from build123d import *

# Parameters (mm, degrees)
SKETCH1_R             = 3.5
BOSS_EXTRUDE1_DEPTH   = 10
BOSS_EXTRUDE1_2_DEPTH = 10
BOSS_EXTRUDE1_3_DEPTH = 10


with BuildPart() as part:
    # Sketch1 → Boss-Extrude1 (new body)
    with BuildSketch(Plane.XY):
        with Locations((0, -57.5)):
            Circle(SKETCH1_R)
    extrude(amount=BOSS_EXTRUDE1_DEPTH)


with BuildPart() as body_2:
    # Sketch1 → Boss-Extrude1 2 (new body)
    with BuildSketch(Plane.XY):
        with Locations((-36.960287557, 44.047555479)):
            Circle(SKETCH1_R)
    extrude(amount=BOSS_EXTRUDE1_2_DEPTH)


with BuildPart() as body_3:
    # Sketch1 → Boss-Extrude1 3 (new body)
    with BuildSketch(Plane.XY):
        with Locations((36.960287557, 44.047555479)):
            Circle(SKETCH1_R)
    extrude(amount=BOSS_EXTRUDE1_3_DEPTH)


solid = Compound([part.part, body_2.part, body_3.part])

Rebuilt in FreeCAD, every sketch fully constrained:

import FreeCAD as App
import Part
import Sketcher
from FreeCAD import Vector

doc = App.newDocument("Part")
params = doc.addObject("Spreadsheet::Sheet", "Params")
for row, (alias, value) in enumerate([
    ("sketch1_diameter", "7 mm"),
    ("pad1_length", "10 mm"),
    ("sketch2_diameter", "7 mm"),
    ("pad2_length", "10 mm"),
    ("sketch3_diameter", "7 mm"),
    ("pad3_length", "10 mm"),
], start=1):
    params.set(f"A{row}", alias)
    params.set(f"B{row}", "=" + value)
    params.setAlias(f"B{row}", alias)

body = doc.addObject("PartDesign::Body", "Body")

sketch1 = body.newObject("Sketcher::SketchObject", "Sketch")
sketch1.AttachmentSupport = (doc.getObject("XY_Plane"), [""])
sketch1.MapMode = "FlatFace"
sketch1.addGeometry(Part.Circle(Vector(0, -57.5, 0), Vector(0, 0, 1), 3.5), False)
sketch1.addConstraint([
    Sketcher.Constraint("PointOnObject", 0, 3, -2),
    Sketcher.Constraint("Diameter", 0, 7.0),
    Sketcher.Constraint("DistanceY", 0, 3, -1, 1, 57.5),
])
sketch1.setExpression("Constraints[1]", "Params.sketch1_diameter")
pad1 = body.newObject("PartDesign::Pad", "Pad")
pad1.Profile = sketch1
pad1.setExpression("Length", "Params.pad1_length")
body2 = doc.addObject("PartDesign::Body", "Body001")

sketch2 = body2.newObject("Sketcher::SketchObject", "Sketch001")
sketch2.AttachmentSupport = (doc.getObject("XY_Plane001"), [""])
sketch2.MapMode = "FlatFace"
sketch2.addGeometry(Part.Circle(Vector(-37, 44, 0), Vector(0, 0, 1), 3.5), False)
sketch2.addConstraint([
    Sketcher.Constraint("Diameter", 0, 7.0),
    Sketcher.Constraint("DistanceX", 0, 3, -1, 1, 36.960288),
    Sketcher.Constraint("DistanceY", -1, 1, 0, 3, 44.047555),
])
sketch2.setExpression("Constraints[0]", "Params.sketch2_diameter")
pad2 = body2.newObject("PartDesign::Pad", "Pad001")
pad2.Profile = sketch2
pad2.setExpression("Length", "Params.pad2_length")
body3 = doc.addObject("PartDesign::Body", "Body002")

sketch3 = body3.newObject("Sketcher::SketchObject", "Sketch002")
sketch3.AttachmentSupport = (doc.getObject("XY_Plane002"), [""])
sketch3.MapMode = "FlatFace"
sketch3.addGeometry(Part.Circle(Vector(37, 44, 0), Vector(0, 0, 1), 3.5), False)
sketch3.addConstraint([
    Sketcher.Constraint("Diameter", 0, 7.0),
    Sketcher.Constraint("DistanceX", -1, 1, 0, 3, 36.960288),
    Sketcher.Constraint("DistanceY", -1, 1, 0, 3, 44.047555),
])
sketch3.setExpression("Constraints[0]", "Params.sketch3_diameter")
pad3 = body3.newObject("PartDesign::Pad", "Pad002")
pad3.Profile = sketch3
pad3.setExpression("Length", "Params.pad3_length")

doc.recompute()
